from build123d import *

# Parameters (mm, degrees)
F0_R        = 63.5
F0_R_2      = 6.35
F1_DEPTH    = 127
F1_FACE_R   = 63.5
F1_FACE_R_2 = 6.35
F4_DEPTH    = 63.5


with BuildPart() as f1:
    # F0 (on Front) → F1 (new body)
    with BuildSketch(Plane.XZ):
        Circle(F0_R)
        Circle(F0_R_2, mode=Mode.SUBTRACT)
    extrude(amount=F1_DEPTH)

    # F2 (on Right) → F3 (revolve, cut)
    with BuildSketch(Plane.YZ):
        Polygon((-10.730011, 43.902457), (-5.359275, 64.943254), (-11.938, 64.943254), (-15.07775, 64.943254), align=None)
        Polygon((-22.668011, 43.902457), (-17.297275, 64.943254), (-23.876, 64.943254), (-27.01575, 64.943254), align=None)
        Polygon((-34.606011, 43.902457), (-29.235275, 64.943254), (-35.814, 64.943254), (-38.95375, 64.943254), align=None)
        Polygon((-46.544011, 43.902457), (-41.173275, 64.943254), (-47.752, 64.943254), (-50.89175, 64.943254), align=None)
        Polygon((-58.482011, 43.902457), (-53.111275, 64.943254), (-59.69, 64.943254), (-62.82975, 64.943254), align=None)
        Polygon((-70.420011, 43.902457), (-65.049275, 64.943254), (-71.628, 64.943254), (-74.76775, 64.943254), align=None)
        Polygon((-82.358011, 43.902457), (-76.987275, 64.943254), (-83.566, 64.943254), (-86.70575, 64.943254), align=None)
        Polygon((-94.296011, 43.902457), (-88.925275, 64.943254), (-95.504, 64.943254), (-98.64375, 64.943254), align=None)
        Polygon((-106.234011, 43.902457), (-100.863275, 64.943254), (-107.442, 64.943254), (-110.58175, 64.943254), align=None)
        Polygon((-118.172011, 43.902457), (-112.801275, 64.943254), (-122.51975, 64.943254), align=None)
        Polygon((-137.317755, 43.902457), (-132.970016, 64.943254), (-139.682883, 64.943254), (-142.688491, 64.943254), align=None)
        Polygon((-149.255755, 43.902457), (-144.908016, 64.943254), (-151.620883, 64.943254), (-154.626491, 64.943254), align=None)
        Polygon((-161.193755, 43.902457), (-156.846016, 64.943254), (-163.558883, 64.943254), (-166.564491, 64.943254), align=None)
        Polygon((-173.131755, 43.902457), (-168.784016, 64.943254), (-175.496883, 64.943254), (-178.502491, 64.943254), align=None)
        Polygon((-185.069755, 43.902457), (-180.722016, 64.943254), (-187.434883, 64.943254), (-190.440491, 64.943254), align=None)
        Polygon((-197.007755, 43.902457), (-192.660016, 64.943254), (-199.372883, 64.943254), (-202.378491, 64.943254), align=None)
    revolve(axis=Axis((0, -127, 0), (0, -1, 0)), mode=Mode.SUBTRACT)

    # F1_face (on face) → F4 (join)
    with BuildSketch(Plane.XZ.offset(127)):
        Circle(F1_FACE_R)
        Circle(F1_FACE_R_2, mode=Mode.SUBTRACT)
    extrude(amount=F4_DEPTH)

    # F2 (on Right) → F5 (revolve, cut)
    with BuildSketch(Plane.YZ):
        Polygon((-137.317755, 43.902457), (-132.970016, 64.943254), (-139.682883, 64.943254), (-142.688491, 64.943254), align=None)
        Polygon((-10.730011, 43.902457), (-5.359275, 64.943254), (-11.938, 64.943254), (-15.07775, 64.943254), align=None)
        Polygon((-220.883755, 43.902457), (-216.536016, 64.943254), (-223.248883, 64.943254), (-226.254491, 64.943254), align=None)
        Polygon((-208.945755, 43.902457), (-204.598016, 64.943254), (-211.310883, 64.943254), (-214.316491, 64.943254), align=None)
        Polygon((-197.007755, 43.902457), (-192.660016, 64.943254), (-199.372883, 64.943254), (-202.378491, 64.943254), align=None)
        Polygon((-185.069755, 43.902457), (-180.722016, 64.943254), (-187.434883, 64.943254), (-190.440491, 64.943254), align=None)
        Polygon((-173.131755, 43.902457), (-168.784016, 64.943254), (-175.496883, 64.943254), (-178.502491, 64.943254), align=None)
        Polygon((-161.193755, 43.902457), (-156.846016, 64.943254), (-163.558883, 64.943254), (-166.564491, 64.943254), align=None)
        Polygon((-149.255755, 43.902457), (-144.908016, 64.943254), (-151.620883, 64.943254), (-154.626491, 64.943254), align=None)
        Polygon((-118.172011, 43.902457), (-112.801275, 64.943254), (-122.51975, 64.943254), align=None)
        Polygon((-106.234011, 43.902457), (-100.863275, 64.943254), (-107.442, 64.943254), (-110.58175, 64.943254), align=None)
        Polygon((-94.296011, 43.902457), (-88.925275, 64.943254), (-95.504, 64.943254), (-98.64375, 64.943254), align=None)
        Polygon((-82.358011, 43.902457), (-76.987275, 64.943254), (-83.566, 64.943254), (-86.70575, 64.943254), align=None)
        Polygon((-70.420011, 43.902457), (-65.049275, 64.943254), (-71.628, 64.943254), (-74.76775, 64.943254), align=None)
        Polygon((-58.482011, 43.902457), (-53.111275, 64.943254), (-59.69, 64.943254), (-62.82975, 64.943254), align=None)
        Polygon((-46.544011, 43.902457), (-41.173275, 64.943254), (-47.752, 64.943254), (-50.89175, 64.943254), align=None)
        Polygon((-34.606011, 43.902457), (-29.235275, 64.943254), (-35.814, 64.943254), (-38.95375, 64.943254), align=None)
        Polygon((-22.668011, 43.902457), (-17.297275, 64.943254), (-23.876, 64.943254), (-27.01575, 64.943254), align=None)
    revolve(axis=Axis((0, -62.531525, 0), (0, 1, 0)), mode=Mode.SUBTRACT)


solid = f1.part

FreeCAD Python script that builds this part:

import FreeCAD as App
import Part
import Sketcher
from FreeCAD import Vector
Q = App.Units.Quantity


def add_polygon(sketch, points):
    """Adds a closed chain of lines whose ends are joined by coincident constraints."""
    first, n = sketch.GeometryCount, len(points)
    for a, b in zip(points, points[1:] + points[:1]):
        sketch.addGeometry(Part.LineSegment(App.Vector(*a, 0), App.Vector(*b, 0)), False)
    for i in range(n):
        sketch.addConstraint(Sketcher.Constraint("Coincident", first + i, 2, first + (i + 1) % n, 1))

doc = App.newDocument("Part")
body = doc.addObject("PartDesign::Body", "Body")

# Sketch on XZ plane
sketch1 = body.newObject("Sketcher::SketchObject", "Sketch")
sketch1.AttachmentSupport = (doc.getObject("XZ_Plane"), [""])
sketch1.MapMode = "FlatFace"
sketch1.addGeometry([
    Part.Circle(Vector(0, 0, 0), Vector(0, 0, 1), 64),
    Part.Circle(Vector(0, 0, 0), Vector(0, 0, 1), 6),
], False)
sketch1.addConstraint([
    Sketcher.Constraint("Coincident", 0, 3, -1, 1),
    Sketcher.Constraint("Coincident", 1, 3, -1, 1),
    Sketcher.Constraint("Diameter", 0, Q("5 in")),
    Sketcher.Constraint("Diameter", 1, Q("0.5 in")),
])
pad1 = body.newObject("PartDesign::Pad", "Pad")
pad1.Profile = sketch1
pad1.Length = Q("5 in")

# Sketch on YZ plane
sketch2 = body.newObject("Sketcher::SketchObject", "Sketch001")
sketch2.AttachmentSupport = (doc.getObject("YZ_Plane"), [""])
sketch2.MapMode = "FlatFace"
add_polygon(sketch2, [(-11, 44), (-5, 65), (-15, 65)])  # lines 0-2
add_polygon(sketch2, [(-23, 44), (-17, 65), (-27, 65)])  # lines 3-5
add_polygon(sketch2, [(-35, 44), (-29, 65), (-39, 65)])  # lines 6-8
add_polygon(sketch2, [(-47, 44), (-41, 65), (-51, 65)])  # lines 9-11
add_polygon(sketch2, [(-58, 44), (-53, 65), (-63, 65)])  # lines 12-14
add_polygon(sketch2, [(-70, 44), (-65, 65), (-75, 65)])  # lines 15-17
add_polygon(sketch2, [(-82, 44), (-77, 65), (-87, 65)])  # lines 18-20
add_polygon(sketch2, [(-94, 44), (-89, 65), (-99, 65)])  # lines 21-23
add_polygon(sketch2, [(-106, 44), (-101, 65), (-111, 65)])  # lines 24-26
add_polygon(sketch2, [(-118, 44), (-113, 65), (-123, 65)])  # lines 27-29
add_polygon(sketch2, [(-137, 44), (-133, 65), (-143, 65)])  # lines 30-32
add_polygon(sketch2, [(-149, 44), (-145, 65), (-155, 65)])  # lines 33-35
add_polygon(sketch2, [(-161, 44), (-157, 65), (-167, 65)])  # lines 36-38
add_polygon(sketch2, [(-173, 44), (-169, 65), (-179, 65)])  # lines 39-41
add_polygon(sketch2, [(-185, 44), (-181, 65), (-190, 65)])  # lines 42-44
add_polygon(sketch2, [(-197, 44), (-193, 65), (-202, 65)])  # lines 45-47
sketch2.addConstraint([
    Sketcher.Constraint("Horizontal", 1),
    Sketcher.Constraint("Horizontal", 4),
    Sketcher.Constraint("Horizontal", 7),
    Sketcher.Constraint("Horizontal", 10),
    Sketcher.Constraint("Horizontal", 13),
    Sketcher.Constraint("Horizontal", 16),
    Sketcher.Constraint("Horizontal", 19),
    Sketcher.Constraint("Horizontal", 22),
    Sketcher.Constraint("Horizontal", 25),
    Sketcher.Constraint("Horizontal", 28),
    Sketcher.Constraint("Horizontal", 31),
    Sketcher.Constraint("Horizontal", 34),
    Sketcher.Constraint("Horizontal", 37),
    Sketcher.Constraint("Horizontal", 40),
    Sketcher.Constraint("Horizontal", 43),
    Sketcher.Constraint("Horizontal", 46),
    Sketcher.Constraint("Parallel", 0, 3),
    Sketcher.Constraint("Parallel", 2, 5),
    Sketcher.Constraint("Parallel", 3, 6),
    Sketcher.Constraint("Parallel", 5, 8),
    Sketcher.Constraint("Parallel", 6, 9),
    Sketcher.Constraint("Parallel", 8, 11),
    Sketcher.Constraint("Parallel", 9, 12),
    Sketcher.Constraint("Parallel", 11, 14),
    Sketcher.Constraint("Parallel", 12, 15),
    Sketcher.Constraint("Parallel", 14, 17),
    Sketcher.Constraint("Parallel", 15, 18),
    Sketcher.Constraint("Parallel", 17, 20),
    Sketcher.Constraint("Parallel", 18, 21),
    Sketcher.Constraint("Parallel", 20, 23),
    Sketcher.Constraint("Parallel", 21, 24),
    Sketcher.Constraint("Parallel", 23, 26),
    Sketcher.Constraint("Parallel", 24, 27),
    Sketcher.Constraint("Parallel", 26, 29),
    Sketcher.Constraint("Parallel", 30, 33),
    Sketcher.Constraint("Parallel", 32, 35),
    Sketcher.Constraint("Parallel", 33, 36),
    Sketcher.Constraint("Parallel", 35, 38),
    Sketcher.Constraint("Parallel", 36, 39),
    Sketcher.Constraint("Parallel", 38, 41),
    Sketcher.Constraint("Parallel", 39, 42),
    Sketcher.Constraint("Parallel", 41, 44),
    Sketcher.Constraint("Parallel", 42, 45),
    Sketcher.Constraint("Parallel", 44, 47),
    Sketcher.Constraint("Horizontal", 1, 2, 3, 2),
    Sketcher.Constraint("Horizontal", 2, 2, 5, 2),
    Sketcher.Constraint("Horizontal", 4, 2, 6, 2),
    Sketcher.Constraint("Horizontal", 5, 2, 8, 2),
    Sketcher.Constraint("Horizontal", 7, 2, 9, 2),
    Sketcher.Constraint("Horizontal", 8, 2, 11, 2),
    Sketcher.Constraint("Horizontal", 10, 2, 12, 2),
    Sketcher.Constraint("Horizontal", 11, 2, 14, 2),
    Sketcher.Constraint("Horizontal", 13, 2, 15, 2),
    Sketcher.Constraint("Horizontal", 14, 2, 17, 2),
    Sketcher.Constraint("Horizontal", 16, 2, 18, 2),
    Sketcher.Constraint("Horizontal", 17, 2, 20, 2),
    Sketcher.Constraint("Horizontal", 19, 2, 21, 2),
    Sketcher.Constraint("Horizontal", 20, 2, 23, 2),
    Sketcher.Constraint("Horizontal", 22, 2, 24, 2),
    Sketcher.Constraint("Horizontal", 23, 2, 26, 2),
    Sketcher.Constraint("Horizontal", 25, 2, 27, 2),
    Sketcher.Constraint("Horizontal", 26, 2, 29, 2),
    Sketcher.Constraint("Horizontal", 28, 2, 30, 2),
    Sketcher.Constraint("Horizontal", 29, 2, 32, 2),
    Sketcher.Constraint("Horizontal", 31, 2, 33, 2),
    Sketcher.Constraint("Horizontal", 32, 2, 35, 2),
    Sketcher.Constraint("Horizontal", 34, 2, 36, 2),
    Sketcher.Constraint("Horizontal", 35, 2, 38, 2),
    Sketcher.Constraint("Horizontal", 37, 2, 39, 2),
    Sketcher.Constraint("Horizontal", 38, 2, 41, 2),
    Sketcher.Constraint("Horizontal", 40, 2, 42, 2),
    Sketcher.Constraint("Horizontal", 41, 2, 44, 2),
    Sketcher.Constraint("Horizontal", 43, 2, 45, 2),
    Sketcher.Constraint("Horizontal", 44, 2, 47, 2),
    Sketcher.Constraint("Equal", 28, 31),
    Sketcher.Constraint("Equal", 29, 30),
    Sketcher.Constraint("DistanceX", 3, 2, 0, 2, Q("0.47 in")),
    Sketcher.Constraint("DistanceX", 6, 2, 3, 2, Q("0.47 in")),
    Sketcher.Constraint("DistanceX", 9, 2, 6, 2, Q("0.47 in")),
    Sketcher.Constraint("DistanceX", 12, 2, 9, 2, Q("0.47 in")),
    Sketcher.Constraint("DistanceX", 15, 2, 12, 2, Q("0.47 in")),
    Sketcher.Constraint("DistanceX", 18, 2, 15, 2, Q("0.47 in")),
    Sketcher.Constraint("DistanceX", 21, 2, 18, 2, Q("0.47 in")),
    Sketcher.Constraint("DistanceX", 24, 2, 21, 2, Q("0.47 in")),
    Sketcher.Constraint("DistanceX", 27, 2, 24, 2, Q("0.47 in")),
    Sketcher.Constraint("DistanceX", 33, 2, 30, 2, Q("0.47 in")),
    Sketcher.Constraint("DistanceX", 36, 2, 33, 2, Q("0.47 in")),
    Sketcher.Constraint("DistanceX", 39, 2, 36, 2, Q("0.47 in")),
    Sketcher.Constraint("DistanceX", 42, 2, 39, 2, Q("0.47 in")),
    Sketcher.Constraint("DistanceX", 45, 2, 42, 2, Q("0.47 in")),
    Sketcher.Constraint("Distance", 0, Q("21.715431 mm")),
    Sketcher.Constraint("DistanceX", 1, 2, 1, 1, Q("9.718475 mm")),
    Sketcher.Constraint("DistanceX", 1, 2, -1, 1, Q("15.07775 mm")),
    Sketcher.Constraint("DistanceX", 2, 2, -1, 1, Q("10.730011 mm")),
    Sketcher.Constraint("DistanceX", 31, 2, -1, 1, Q("142.688491 mm")),
    Sketcher.Constraint("DistanceY", -1, 1, 0, 2, Q("64.943254 mm")),
])
groove = body.newObject("PartDesign::Groove", "Groove")
groove.Profile = sketch2
groove.ReferenceAxis = (sketch2, ["H_Axis"])
groove.Angle = 360

# Sketch on XZ plane
sketch3 = body.newObject("Sketcher::SketchObject", "Sketch002")
sketch3.AttachmentSupport = (doc.getObject("XZ_Plane"), [""])
sketch3.MapMode = "FlatFace"
sketch3.AttachmentOffset = App.Placement(Vector(0, 0, 5 * 25.4), App.Rotation())
sketch3.addGeometry([
    Part.Circle(Vector(0, 0, 0), Vector(0, 0, 1), 64),
    Part.Circle(Vector(0, 0, 0), Vector(0, 0, 1), 6),
], False)
sketch3.addConstraint([
    Sketcher.Constraint("Coincident", 0, 3, -1, 1),
    Sketcher.Constraint("Coincident", 1, 3, -1, 1),
    Sketcher.Constraint("Diameter", 0, Q("5 in")),
    Sketcher.Constraint("Diameter", 1, Q("0.5 in")),
])
pad2 = body.newObject("PartDesign::Pad", "Pad001")
pad2.Profile = sketch3
pad2.Length = Q("2.5 in")

# Sketch on YZ plane
sketch4 = body.newObject("Sketcher::SketchObject", "Sketch003")
sketch4.AttachmentSupport = (doc.getObject("YZ_Plane"), [""])
sketch4.MapMode = "FlatFace"
add_polygon(sketch4, [(-137, 44), (-133, 65), (-143, 65)])  # lines 0-2
add_polygon(sketch4, [(-11, 44), (-5, 65), (-15, 65)])  # lines 3-5
add_polygon(sketch4, [(-221, 44), (-217, 65), (-226, 65)])  # lines 6-8
add_polygon(sketch4, [(-209, 44), (-205, 65), (-214, 65)])  # lines 9-11
add_polygon(sketch4, [(-197, 44), (-193, 65), (-202, 65)])  # lines 12-14
add_polygon(sketch4, [(-185, 44), (-181, 65), (-190, 65)])  # lines 15-17
add_polygon(sketch4, [(-173, 44), (-169, 65), (-179, 65)])  # lines 18-20
add_polygon(sketch4, [(-161, 44), (-157, 65), (-167, 65)])  # lines 21-23
add_polygon(sketch4, [(-149, 44), (-145, 65), (-155, 65)])  # lines 24-26
add_polygon(sketch4, [(-118, 44), (-113, 65), (-123, 65)])  # lines 27-29
add_polygon(sketch4, [(-106, 44), (-101, 65), (-111, 65)])  # lines 30-32
add_polygon(sketch4, [(-94, 44), (-89, 65), (-99, 65)])  # lines 33-35
add_polygon(sketch4, [(-82, 44), (-77, 65), (-87, 65)])  # lines 36-38
add_polygon(sketch4, [(-70, 44), (-65, 65), (-75, 65)])  # lines 39-41
add_polygon(sketch4, [(-58, 44), (-53, 65), (-63, 65)])  # lines 42-44
add_polygon(sketch4, [(-47, 44), (-41, 65), (-51, 65)])  # lines 45-47
add_polygon(sketch4, [(-35, 44), (-29, 65), (-39, 65)])  # lines 48-50
add_polygon(sketch4, [(-23, 44), (-17, 65), (-27, 65)])  # lines 51-53
sketch4.addConstraint([
    Sketcher.Constraint("Horizontal", 1),
    Sketcher.Constraint("Horizontal", 4),
    Sketcher.Constraint("Horizontal", 7),
    Sketcher.Constraint("Horizontal", 10),
    Sketcher.Constraint("Horizontal", 13),
    Sketcher.Constraint("Horizontal", 16),
    Sketcher.Constraint("Horizontal", 19),
    Sketcher.Constraint("Horizontal", 22),
    Sketcher.Constraint("Horizontal", 25),
    Sketcher.Constraint("Horizontal", 28),
    Sketcher.Constraint("Horizontal", 31),
    Sketcher.Constraint("Horizontal", 34),
    Sketcher.Constraint("Horizontal", 37),
    Sketcher.Constraint("Horizontal", 40),
    Sketcher.Constraint("Horizontal", 43),
    Sketcher.Constraint("Horizontal", 46),
    Sketcher.Constraint("Horizontal", 49),
    Sketcher.Constraint("Horizontal", 52),
    Sketcher.Constraint("Parallel", 0, 6),
    Sketcher.Constraint("Parallel", 2, 8),
    Sketcher.Constraint("Parallel", 6, 9),
    Sketcher.Constraint("Parallel", 8, 11),
    Sketcher.Constraint("Parallel", 9, 12),
    Sketcher.Constraint("Parallel", 11, 14),
    Sketcher.Constraint("Parallel", 12, 15),
    Sketcher.Constraint("Parallel", 14, 17),
    Sketcher.Constraint("Parallel", 15, 18),
    Sketcher.Constraint("Parallel", 17, 20),
    Sketcher.Constraint("Parallel", 18, 21),
    Sketcher.Constraint("Parallel", 20, 23),
    Sketcher.Constraint("Parallel", 21, 24),
    Sketcher.Constraint("Parallel", 23, 26),
    Sketcher.Constraint("Parallel", 3, 27),
    Sketcher.Constraint("Parallel", 5, 29),
    Sketcher.Constraint("Parallel", 27, 30),
    Sketcher.Constraint("Parallel", 29, 32),
    Sketcher.Constraint("Parallel", 30, 33),
    Sketcher.Constraint("Parallel", 32, 35),
    Sketcher.Constraint("Parallel", 33, 36),
    Sketcher.Constraint("Parallel", 35, 38),
    Sketcher.Constraint("Parallel", 36, 39),
    Sketcher.Constraint("Parallel", 38, 41),
    Sketcher.Constraint("Parallel", 39, 42),
    Sketcher.Constraint("Parallel", 41, 44),
    Sketcher.Constraint("Parallel", 42, 45),
    Sketcher.Constraint("Parallel", 44, 47),
    Sketcher.Constraint("Parallel", 45, 48),
    Sketcher.Constraint("Parallel", 47, 50),
    Sketcher.Constraint("Parallel", 48, 51),
    Sketcher.Constraint("Parallel", 50, 53),
    Sketcher.Constraint("Horizontal", 1, 2, 3, 2),
    Sketcher.Constraint("Horizontal", 2, 2, 5, 2),
    Sketcher.Constraint("Horizontal", 4, 2, 6, 2),
    Sketcher.Constraint("Horizontal", 5, 2, 8, 2),
    Sketcher.Constraint("Horizontal", 7, 2, 9, 2),
    Sketcher.Constraint("Horizontal", 8, 2, 11, 2),
    Sketcher.Constraint("Horizontal", 10, 2, 12, 2),
    Sketcher.Constraint("Horizontal", 11, 2, 14, 2),
    Sketcher.Constraint("Horizontal", 13, 2, 15, 2),
    Sketcher.Constraint("Horizontal", 14, 2, 17, 2),
    Sketcher.Constraint("Horizontal", 16, 2, 18, 2),
    Sketcher.Constraint("Horizontal", 17, 2, 20, 2),
    Sketcher.Constraint("Horizontal", 19, 2, 21, 2),
    Sketcher.Constraint("Horizontal", 20, 2, 23, 2),
    Sketcher.Constraint("Horizontal", 22, 2, 24, 2),
    Sketcher.Constraint("Horizontal", 23, 2, 26, 2),
    Sketcher.Constraint("Horizontal", 25, 2, 27, 2),
    Sketcher.Constraint("Horizontal", 26, 2, 29, 2),
    Sketcher.Constraint("Horizontal", 28, 2, 30, 2),
    Sketcher.Constraint("Horizontal", 29, 2, 32, 2),
    Sketcher.Constraint("Horizontal", 31, 2, 33, 2),
    Sketcher.Constraint("Horizontal", 32, 2, 35, 2),
    Sketcher.Constraint("Horizontal", 34, 2, 36, 2),
    Sketcher.Constraint("Horizontal", 35, 2, 38, 2),
    Sketcher.Constraint("Horizontal", 37, 2, 39, 2),
    Sketcher.Constraint("Horizontal", 38, 2, 41, 2),
    Sketcher.Constraint("Horizontal", 40, 2, 42, 2),
    Sketcher.Constraint("Horizontal", 41, 2, 44, 2),
    Sketcher.Constraint("Horizontal", 43, 2, 45, 2),
    Sketcher.Constraint("Horizontal", 44, 2, 47, 2),
    Sketcher.Constraint("Horizontal", 46, 2, 48, 2),
    Sketcher.Constraint("Horizontal", 47, 2, 50, 2),
    Sketcher.Constraint("Horizontal", 49, 2, 51, 2),
    Sketcher.Constraint("Horizontal", 50, 2, 53, 2),
    Sketcher.Constraint("Equal", 1, 4),
    Sketcher.Constraint("Equal", 2, 3),
    Sketcher.Constraint("DistanceX", 6, 2, 0, 2, Q("3.29 in")),
    Sketcher.Constraint("DistanceX", 6, 2, 9, 2, Q("0.47 in")),
    Sketcher.Constraint("DistanceX", 9, 2, 12, 2, Q("0.47 in")),
    Sketcher.Constraint("DistanceX", 12, 2, 15, 2, Q("0.47 in")),
    Sketcher.Constraint("DistanceX", 15, 2, 18, 2, Q("0.47 in")),
    Sketcher.Constraint("DistanceX", 18, 2, 21, 2, Q("0.47 in")),
    Sketcher.Constraint("DistanceX", 21, 2, 24, 2, Q("0.47 in")),
    Sketcher.Constraint("DistanceX", 27, 2, 30, 2, Q("0.47 in")),
    Sketcher.Constraint("DistanceX", 30, 2, 33, 2, Q("0.47 in")),
    Sketcher.Constraint("DistanceX", 33, 2, 36, 2, Q("0.47 in")),
    Sketcher.Constraint("DistanceX", 36, 2, 39, 2, Q("0.47 in")),
    Sketcher.Constraint("DistanceX", 39, 2, 42, 2, Q("0.47 in")),
    Sketcher.Constraint("DistanceX", 42, 2, 45, 2, Q("0.47 in")),
    Sketcher.Constraint("DistanceX", 45, 2, 48, 2, Q("0.47 in")),
    Sketcher.Constraint("DistanceX", 48, 2, 3, 2, Q("0.94 in")),
    Sketcher.Constraint("DistanceX", 51, 2, 3, 2, Q("0.47 in")),
    Sketcher.Constraint("Distance", 2, Q("21.715431 mm")),
    Sketcher.Constraint("DistanceX", 1, 2, 1, 1, Q("9.718475 mm")),
    Sketcher.Constraint("DistanceX", 1, 2, -1, 1, Q("142.688491 mm")),
    Sketcher.Constraint("DistanceX", 4, 2, -1, 1, Q("15.07775 mm")),
    Sketcher.Constraint("DistanceX", 5, 2, -1, 1, Q("10.730011 mm")),
    Sketcher.Constraint("DistanceY", -1, 1, 0, 2, Q("64.943254 mm")),
])
groove2 = body.newObject("PartDesign::Groove", "Groove001")
groove2.Profile = sketch4
groove2.ReferenceAxis = (sketch4, ["H_Axis"])
groove2.Angle = 360

doc.recompute()
